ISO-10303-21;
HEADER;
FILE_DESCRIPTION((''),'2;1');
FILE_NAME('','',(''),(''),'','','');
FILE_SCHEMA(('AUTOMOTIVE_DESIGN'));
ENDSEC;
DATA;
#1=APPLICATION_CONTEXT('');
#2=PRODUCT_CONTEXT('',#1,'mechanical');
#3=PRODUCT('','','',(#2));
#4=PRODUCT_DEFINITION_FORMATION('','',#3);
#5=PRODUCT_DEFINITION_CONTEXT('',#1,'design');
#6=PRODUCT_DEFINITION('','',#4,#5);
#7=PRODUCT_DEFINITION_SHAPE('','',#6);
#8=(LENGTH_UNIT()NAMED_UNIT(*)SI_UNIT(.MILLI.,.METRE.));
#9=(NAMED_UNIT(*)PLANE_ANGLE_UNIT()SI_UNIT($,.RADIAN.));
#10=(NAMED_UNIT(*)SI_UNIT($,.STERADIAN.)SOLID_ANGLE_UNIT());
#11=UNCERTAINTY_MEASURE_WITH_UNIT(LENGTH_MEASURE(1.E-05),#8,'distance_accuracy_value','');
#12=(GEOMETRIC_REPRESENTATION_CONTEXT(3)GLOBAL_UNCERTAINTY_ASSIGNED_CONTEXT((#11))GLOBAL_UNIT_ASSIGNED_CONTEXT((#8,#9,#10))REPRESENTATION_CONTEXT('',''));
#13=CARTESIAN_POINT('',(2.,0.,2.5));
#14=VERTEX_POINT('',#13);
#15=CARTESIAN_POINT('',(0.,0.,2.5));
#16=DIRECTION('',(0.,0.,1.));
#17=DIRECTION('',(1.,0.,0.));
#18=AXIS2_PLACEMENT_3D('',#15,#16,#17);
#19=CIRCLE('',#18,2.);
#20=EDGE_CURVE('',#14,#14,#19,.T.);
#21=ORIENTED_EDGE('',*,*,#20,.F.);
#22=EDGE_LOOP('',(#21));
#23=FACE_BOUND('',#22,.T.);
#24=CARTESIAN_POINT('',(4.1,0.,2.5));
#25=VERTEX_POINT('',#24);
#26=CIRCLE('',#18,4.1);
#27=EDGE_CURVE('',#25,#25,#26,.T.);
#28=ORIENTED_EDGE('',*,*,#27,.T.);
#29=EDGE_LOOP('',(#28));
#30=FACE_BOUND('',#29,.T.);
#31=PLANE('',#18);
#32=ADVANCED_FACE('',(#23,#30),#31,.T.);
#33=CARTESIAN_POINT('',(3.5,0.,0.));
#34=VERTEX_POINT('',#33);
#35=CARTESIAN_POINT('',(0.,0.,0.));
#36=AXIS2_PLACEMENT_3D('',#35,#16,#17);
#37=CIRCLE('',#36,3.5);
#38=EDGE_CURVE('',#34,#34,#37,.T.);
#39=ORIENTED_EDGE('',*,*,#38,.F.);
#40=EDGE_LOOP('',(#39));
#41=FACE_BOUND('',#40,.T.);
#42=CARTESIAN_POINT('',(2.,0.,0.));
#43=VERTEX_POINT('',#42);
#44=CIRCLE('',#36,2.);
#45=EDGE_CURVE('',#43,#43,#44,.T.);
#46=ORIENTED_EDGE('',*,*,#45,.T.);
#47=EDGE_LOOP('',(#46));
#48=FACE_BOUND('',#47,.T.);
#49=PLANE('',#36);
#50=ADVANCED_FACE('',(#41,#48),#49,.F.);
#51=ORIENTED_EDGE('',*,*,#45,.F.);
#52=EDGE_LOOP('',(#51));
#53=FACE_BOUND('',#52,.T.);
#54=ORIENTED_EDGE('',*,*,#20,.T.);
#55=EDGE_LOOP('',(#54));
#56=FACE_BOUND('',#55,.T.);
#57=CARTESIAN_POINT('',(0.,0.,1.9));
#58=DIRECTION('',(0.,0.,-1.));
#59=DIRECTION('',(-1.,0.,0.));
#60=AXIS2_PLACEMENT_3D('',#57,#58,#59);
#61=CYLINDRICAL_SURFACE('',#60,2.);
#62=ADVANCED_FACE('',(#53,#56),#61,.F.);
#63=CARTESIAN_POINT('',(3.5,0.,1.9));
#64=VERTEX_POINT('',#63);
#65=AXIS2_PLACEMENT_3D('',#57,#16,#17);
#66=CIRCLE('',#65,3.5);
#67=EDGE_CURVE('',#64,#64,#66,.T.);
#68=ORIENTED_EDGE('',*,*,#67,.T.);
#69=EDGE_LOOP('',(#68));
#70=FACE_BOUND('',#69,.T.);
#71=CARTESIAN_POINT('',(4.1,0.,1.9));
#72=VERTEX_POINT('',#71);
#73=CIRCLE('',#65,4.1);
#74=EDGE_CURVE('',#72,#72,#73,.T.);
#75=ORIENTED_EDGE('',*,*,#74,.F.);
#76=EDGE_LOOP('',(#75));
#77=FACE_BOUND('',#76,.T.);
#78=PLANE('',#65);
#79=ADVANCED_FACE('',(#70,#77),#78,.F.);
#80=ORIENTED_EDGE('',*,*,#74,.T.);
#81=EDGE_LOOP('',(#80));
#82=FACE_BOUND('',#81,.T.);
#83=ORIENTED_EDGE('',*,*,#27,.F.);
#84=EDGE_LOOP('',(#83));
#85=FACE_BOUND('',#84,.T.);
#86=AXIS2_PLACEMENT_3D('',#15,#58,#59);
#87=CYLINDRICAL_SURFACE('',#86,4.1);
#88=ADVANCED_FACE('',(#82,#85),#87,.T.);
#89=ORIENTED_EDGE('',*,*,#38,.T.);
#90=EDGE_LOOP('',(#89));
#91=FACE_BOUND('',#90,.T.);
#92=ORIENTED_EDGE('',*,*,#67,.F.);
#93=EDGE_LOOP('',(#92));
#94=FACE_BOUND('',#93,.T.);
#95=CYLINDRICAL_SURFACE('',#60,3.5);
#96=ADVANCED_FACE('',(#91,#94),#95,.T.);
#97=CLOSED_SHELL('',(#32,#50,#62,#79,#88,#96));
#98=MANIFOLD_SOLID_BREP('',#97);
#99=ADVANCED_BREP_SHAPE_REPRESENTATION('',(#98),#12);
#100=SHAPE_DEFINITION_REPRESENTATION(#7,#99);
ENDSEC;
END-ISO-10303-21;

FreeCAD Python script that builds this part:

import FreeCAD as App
import Part
import Sketcher

doc = App.newDocument("Part")
body = doc.addObject("PartDesign::Body", "Body")

# Sketch on XY plane
sketch1 = body.newObject("Sketcher::SketchObject", "Sketch")
sketch1.AttachmentSupport = (doc.getObject("XY_Plane"), [""])
sketch1.MapMode = "FlatFace"
sketch1.addGeometry([
    Part.Circle(App.Vector(0, 0, 0), App.Vector(0, 0, 1), 3.5),
    Part.Circle(App.Vector(0, 0, 0), App.Vector(0, 0, 1), 2),
], False)
sketch1.addConstraint([
    Sketcher.Constraint("Coincident", 0, 3, -1, 1),
    Sketcher.Constraint("Coincident", 1, 3, -1, 1),
    Sketcher.Constraint("Diameter", 0, 7.0),
    Sketcher.Constraint("Diameter", 1, 4.0),
])
pad1 = body.newObject("PartDesign::Pad", "Pad")
pad1.Profile = sketch1
pad1.Length = 1.9

# Sketch on XY plane
sketch2 = body.newObject("Sketcher::SketchObject", "Sketch001")
sketch2.AttachmentSupport = (doc.getObject("XY_Plane"), [""])
sketch2.MapMode = "FlatFace"
sketch2.AttachmentOffset = App.Placement(App.Vector(0, 0, 1.9), App.Rotation())
sketch2.addGeometry([
    Part.Circle(App.Vector(0, 0, 0), App.Vector(0, 0, 1), 4.1),
    Part.Circle(App.Vector(0, 0, 0), App.Vector(0, 0, 1), 2),
], False)
sketch2.addConstraint([
    Sketcher.Constraint("Coincident", 0, 3, -1, 1),
    Sketcher.Constraint("Coincident", 1, 3, -1, 1),
    Sketcher.Constraint("Diameter", 1, 4.0),
    Sketcher.Constraint("Diameter", 0, 8.2),
])
pad2 = body.newObject("PartDesign::Pad", "Pad001")
pad2.Profile = sketch2
pad2.Length = 0.6

doc.recompute()
